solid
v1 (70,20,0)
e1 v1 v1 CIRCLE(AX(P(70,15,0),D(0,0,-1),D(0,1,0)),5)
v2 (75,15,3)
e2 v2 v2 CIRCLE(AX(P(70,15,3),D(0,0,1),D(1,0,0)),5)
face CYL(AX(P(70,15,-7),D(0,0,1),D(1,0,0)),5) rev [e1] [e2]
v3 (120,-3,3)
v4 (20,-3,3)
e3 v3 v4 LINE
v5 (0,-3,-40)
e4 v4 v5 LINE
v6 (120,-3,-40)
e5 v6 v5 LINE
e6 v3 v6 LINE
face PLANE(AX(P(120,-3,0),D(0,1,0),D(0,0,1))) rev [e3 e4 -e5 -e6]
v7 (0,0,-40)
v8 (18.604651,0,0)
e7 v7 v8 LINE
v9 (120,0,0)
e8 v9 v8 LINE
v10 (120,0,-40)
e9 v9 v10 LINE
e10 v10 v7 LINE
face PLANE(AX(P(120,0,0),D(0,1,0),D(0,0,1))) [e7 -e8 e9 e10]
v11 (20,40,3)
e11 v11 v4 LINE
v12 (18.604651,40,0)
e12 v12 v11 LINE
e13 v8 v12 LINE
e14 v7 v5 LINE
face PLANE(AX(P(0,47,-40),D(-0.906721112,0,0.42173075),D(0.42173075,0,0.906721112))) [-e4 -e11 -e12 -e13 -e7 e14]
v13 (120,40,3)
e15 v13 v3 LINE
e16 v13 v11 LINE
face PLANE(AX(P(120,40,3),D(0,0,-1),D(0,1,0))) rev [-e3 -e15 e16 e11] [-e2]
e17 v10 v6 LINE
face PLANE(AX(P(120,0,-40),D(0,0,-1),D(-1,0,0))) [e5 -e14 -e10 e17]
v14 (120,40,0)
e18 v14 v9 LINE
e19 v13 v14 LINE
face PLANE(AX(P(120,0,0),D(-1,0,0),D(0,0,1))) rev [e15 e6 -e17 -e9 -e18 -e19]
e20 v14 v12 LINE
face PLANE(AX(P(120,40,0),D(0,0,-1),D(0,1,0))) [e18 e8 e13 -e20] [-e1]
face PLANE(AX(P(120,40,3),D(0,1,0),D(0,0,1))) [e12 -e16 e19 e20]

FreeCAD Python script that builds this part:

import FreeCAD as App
import Part
import Sketcher

V = App.Vector
Q = App.Units.Quantity

doc = App.newDocument("Part")
params = doc.addObject("Spreadsheet::Sheet", "Params")
for row, (alias, value) in enumerate([
    ("sketch1_width", "40 mm"),
    ("sketch1_width2", "43 mm"),
    ("pad1_length", "120 mm"),
    ("sketch2_width", "20 mm"),
    ("sketch2_height", "43 mm"),
    ("pocket1_length", "50 mm"),
    ("sketch3_diameter", "10 mm"),
    ("pocket2_length", "10 mm"),
], start=1):
    params.set(f"A{row}", alias)
    params.set(f"B{row}", "=" + value)
    params.setAlias(f"B{row}", alias)

body = doc.addObject("PartDesign::Body", "Body")

sketch1 = body.newObject("Sketcher::SketchObject", "Sketch")
sketch1.AttachmentSupport = (doc.getObject("YZ_Plane"), [""])
sketch1.MapMode = "FlatFace"
sketch1.addGeometry([
    Part.LineSegment(V(0, 0, 0), V(40, 0, 0)),
    Part.LineSegment(V(40, 0, 0), V(40, 3, 0)),
    Part.LineSegment(V(40, 3, 0), V(-3, 3, 0)),
    Part.LineSegment(V(-3, 3, 0), V(-3, -40, 0)),
    Part.LineSegment(V(-3, -40, 0), V(0, -40, 0)),
    Part.LineSegment(V(0, -40, 0), V(0, 0, 0)),
], False)
sketch1.addConstraint([
    Sketcher.Constraint("Coincident", 0, 2, 1, 1),
    Sketcher.Constraint("Coincident", 1, 2, 2, 1),
    Sketcher.Constraint("Coincident", 2, 2, 3, 1),
    Sketcher.Constraint("Coincident", 3, 2, 4, 1),
    Sketcher.Constraint("Coincident", 4, 2, 5, 1),
    Sketcher.Constraint("Coincident", 5, 2, 0, 1),
    Sketcher.Constraint("Horizontal", 0),
    Sketcher.Constraint("Vertical", 1),
    Sketcher.Constraint("Horizontal", 2),
    Sketcher.Constraint("Vertical", 3),
    Sketcher.Constraint("Horizontal", 4),
    Sketcher.Constraint("Vertical", 5),
    Sketcher.Constraint("Coincident", 5, 2, -1, 1),
    Sketcher.Constraint("Equal", 4, 1),
    Sketcher.Constraint("Equal", 2, 3),
    Sketcher.Constraint("DistanceX", 0, 1, 0, 2, Q("40 mm")),
    Sketcher.Constraint("DistanceX", 2, 2, 2, 1, Q("43 mm")),
])
sketch1.setExpression("Constraints[15]", "Params.sketch1_width")
sketch1.setExpression("Constraints[16]", "Params.sketch1_width2")
pad1 = body.newObject("PartDesign::Pad", "Pad")
pad1.Profile = sketch1
pad1.setExpression("Length", "Params.pad1_length")

sketch2 = body.newObject("Sketcher::SketchObject", "Sketch001")
sketch2.AttachmentSupport = (doc.getObject("XZ_Plane"), [""])
sketch2.MapMode = "FlatFace"
sketch2.AttachmentOffset = App.Placement(V(0, 0, 3), App.Rotation())
sketch2.addGeometry([
    Part.LineSegment(V(20, 3, 0), V(0, -40, 0)),
    Part.LineSegment(V(0, -40, 0), V(0, 3, 0)),
    Part.LineSegment(V(0, 3, 0), V(20, 3, 0)),
], False)
sketch2.addConstraint([
    Sketcher.Constraint("Coincident", 0, 2, 1, 1),
    Sketcher.Constraint("Coincident", 1, 2, 2, 1),
    Sketcher.Constraint("Coincident", 2, 2, 0, 1),
    Sketcher.Constraint("Vertical", 1),
    Sketcher.Constraint("Horizontal", 2),
    Sketcher.Constraint("PointOnObject", 0, 2, -2),
    Sketcher.Constraint("DistanceX", 2, 1, 2, 2, Q("20 mm")),
    Sketcher.Constraint("DistanceY", 1, 1, 1, 2, Q("43 mm")),
    Sketcher.Constraint("DistanceY", 0, 2, -1, 1, Q("40 mm")),
])
sketch2.setExpression("Constraints[6]", "Params.sketch2_width")
sketch2.setExpression("Constraints[7]", "Params.sketch2_height")
pocket1 = body.newObject("PartDesign::Pocket", "Pocket")
pocket1.Profile = sketch2
pocket1.setExpression("Length", "Params.pocket1_length")

sketch3 = body.newObject("Sketcher::SketchObject", "Sketch002")
sketch3.AttachmentSupport = (doc.getObject("XY_Plane"), [""])
sketch3.MapMode = "FlatFace"
sketch3.AttachmentOffset = App.Placement(V(0, 0, 3), App.Rotation())
sketch3.addGeometry(Part.Circle(V(70, 15, 0), V(0, 0, 1), 5), False)
sketch3.addConstraint([
    Sketcher.Constraint("Diameter", 0, Q("10 mm")),
    Sketcher.Constraint("DistanceX", -1, 1, 0, 3, Q("70 mm")),
    Sketcher.Constraint("DistanceY", -1, 1, 0, 3, Q("15 mm")),
])
sketch3.setExpression("Constraints[0]", "Params.sketch3_diameter")
pocket2 = body.newObject("PartDesign::Pocket", "Pocket001")
pocket2.Profile = sketch3
pocket2.setExpression("Length", "Params.pocket2_length")

doc.recompute()
